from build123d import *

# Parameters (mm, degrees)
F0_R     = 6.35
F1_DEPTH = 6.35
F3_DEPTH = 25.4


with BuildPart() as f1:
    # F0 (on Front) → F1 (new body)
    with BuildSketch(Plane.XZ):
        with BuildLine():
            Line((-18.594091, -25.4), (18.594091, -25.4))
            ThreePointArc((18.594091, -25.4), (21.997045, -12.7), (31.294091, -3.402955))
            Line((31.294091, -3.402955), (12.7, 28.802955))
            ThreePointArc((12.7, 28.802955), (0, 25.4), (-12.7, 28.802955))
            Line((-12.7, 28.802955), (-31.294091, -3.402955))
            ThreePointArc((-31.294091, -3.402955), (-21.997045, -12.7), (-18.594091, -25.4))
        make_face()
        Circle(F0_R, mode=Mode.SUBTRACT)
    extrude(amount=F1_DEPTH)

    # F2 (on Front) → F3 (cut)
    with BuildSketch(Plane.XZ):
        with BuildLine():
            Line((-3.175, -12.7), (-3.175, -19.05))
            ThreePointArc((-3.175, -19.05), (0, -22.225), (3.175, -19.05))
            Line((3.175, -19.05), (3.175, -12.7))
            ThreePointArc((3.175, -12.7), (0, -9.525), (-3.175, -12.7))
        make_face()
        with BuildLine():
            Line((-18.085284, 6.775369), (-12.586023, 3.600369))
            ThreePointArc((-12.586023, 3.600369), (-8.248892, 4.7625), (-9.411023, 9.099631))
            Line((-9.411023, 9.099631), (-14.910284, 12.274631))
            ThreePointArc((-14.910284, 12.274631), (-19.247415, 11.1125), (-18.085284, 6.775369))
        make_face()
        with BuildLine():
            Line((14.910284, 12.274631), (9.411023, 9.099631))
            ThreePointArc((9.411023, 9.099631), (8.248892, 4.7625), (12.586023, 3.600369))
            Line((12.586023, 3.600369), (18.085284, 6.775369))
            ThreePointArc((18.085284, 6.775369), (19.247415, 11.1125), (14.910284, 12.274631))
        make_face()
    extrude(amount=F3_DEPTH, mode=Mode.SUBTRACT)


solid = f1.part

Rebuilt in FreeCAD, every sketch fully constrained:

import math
import FreeCAD as App
import Part
import Sketcher

V = App.Vector
Q = App.Units.Quantity

doc = App.newDocument("Part")
params = doc.addObject("Spreadsheet::Sheet", "Params")
for row, (alias, value) in enumerate([
    ("sketch1_radius", "0.9999998 in"),
    ("sketch1_radius2", "0.9999999 in"),
    ("sketch1_diameter", "0.5 in"),
    ("sketch1_width", "0.4999998 in"),
    ("pad1_length", "0.25 in"),
    ("sketch2_radius", "0.125 in"),
    ("sketch2_height", "0.25 in"),
    ("sketch2_length", "0.25 in"),
    ("pocket1_length", "1 in"),
], start=1):
    params.set(f"A{row}", alias)
    params.set(f"B{row}", "=" + value)
    params.setAlias(f"B{row}", alias)

body = doc.addObject("PartDesign::Body", "Body")

sketch1 = doc.addObject("Sketcher::SketchObject", "Sketch")
body.addObject(sketch1)
sketch1.AttachmentSupport = (doc.XZ_Plane, [""])
sketch1.MapMode = "FlatFace"
sketch1.addGeometry([
    Part.LineSegment(V(-19, -25, 0), V(19, -25, 0)),
    Part.ArcOfCircle(Part.Circle(V(44, -25, 0), V(0, 0, 1), 25), math.radians(120), math.radians(180)),
    Part.LineSegment(V(31, -3, 0), V(13, 29, 0)),
    Part.ArcOfCircle(Part.Circle(V(0, 51, 0), V(0, 0, 1), 25), math.radians(-120), math.radians(-60)),
    Part.LineSegment(V(-13, 29, 0), V(-31, -3, 0)),
    Part.ArcOfCircle(Part.Circle(V(-44, -25, 0), V(0, 0, 1), 25), math.radians(0), math.radians(60)),
    Part.Circle(V(0, 0, 0), V(0, 0, 1), 6),
], False)
sketch1.addConstraint([
    Sketcher.Constraint("Coincident", 0, 2, 1, 2),
    Sketcher.Constraint("Coincident", 1, 1, 2, 1),
    Sketcher.Constraint("Coincident", 2, 2, 3, 2),
    Sketcher.Constraint("Coincident", 3, 1, 4, 1),
    Sketcher.Constraint("Coincident", 4, 2, 5, 2),
    Sketcher.Constraint("Coincident", 5, 1, 0, 1),
    Sketcher.Constraint("Horizontal", 0),
    Sketcher.Constraint("Coincident", 6, 3, -1, 1),
    Sketcher.Constraint("Equal", 1, 5),
    Sketcher.Constraint("Symmetric", 1, 3, 5, 3, -2),
    Sketcher.Constraint("Symmetric", 2, 2, 3, 1, -2),
    Sketcher.Constraint("Horizontal", 1, 1, 4, 2),
    Sketcher.Constraint("Radius", 1, Q("0.9999998 in")),
    Sketcher.Constraint("Radius", 3, Q("0.9999999 in")),
    Sketcher.Constraint("Diameter", 6, Q("0.5 in")),
    Sketcher.Constraint("DistanceY", 1, 3, -1, 1, Q("0.9999999 in")),
    Sketcher.Constraint("DistanceY", -1, 1, 3, 3, Q("1.9999999 in")),
    Sketcher.Constraint("DistanceY", 0, 2, -1, 1, Q("1 in")),
    Sketcher.Constraint("Angle", 2, Q("120 deg")),
    Sketcher.Constraint("DistanceX", 3, 1, 2, 2, Q("1 in")),
    Sketcher.Constraint("DistanceX", 1, 1, 1, 3, Q("0.4999998 in")),
])
sketch1.setExpression("Constraints[12]", "Params.sketch1_radius")
sketch1.setExpression("Constraints[13]", "Params.sketch1_radius2")
sketch1.setExpression("Constraints[14]", "Params.sketch1_diameter")
sketch1.setExpression("Constraints[20]", "Params.sketch1_width")
pad1 = doc.addObject("PartDesign::Pad", "Pad")
body.addObject(pad1)
pad1.Profile = sketch1
pad1.setExpression("Length", "Params.pad1_length")

sketch2 = doc.addObject("Sketcher::SketchObject", "Sketch001")
body.addObject(sketch2)
sketch2.AttachmentSupport = (doc.XZ_Plane, [""])
sketch2.MapMode = "FlatFace"
sketch2.addGeometry([
    Part.LineSegment(V(-3.2, -12.7, 0), V(-3.2, -19.1, 0)),
    Part.ArcOfCircle(Part.Circle(V(0, -19.1, 0), V(0, 0, 1), 3.2), math.radians(180), math.radians(360)),
    Part.LineSegment(V(3.2, -19.1, 0), V(3.2, -12.7, 0)),
    Part.ArcOfCircle(Part.Circle(V(0, -12.7, 0), V(0, 0, 1), 3.2), math.radians(0), math.radians(180)),
    Part.LineSegment(V(-18.1, 6.8, 0), V(-12.6, 3.6, 0)),
    Part.ArcOfCircle(Part.Circle(V(-11, 6.3, 0), V(0, 0, 1), 3.2), math.radians(-120), math.radians(60)),
    Part.LineSegment(V(-9.4, 9.1, 0), V(-14.9, 12.3, 0)),
    Part.ArcOfCircle(Part.Circle(V(-16.5, 9.5, 0), V(0, 0, 1), 3.2), math.radians(60), math.radians(240)),
    Part.LineSegment(V(14.9, 12.3, 0), V(9.4, 9.1, 0)),
    Part.ArcOfCircle(Part.Circle(V(11, 6.3, 0), V(0, 0, 1), 3.2), math.radians(120), math.radians(300)),
    Part.LineSegment(V(12.6, 3.6, 0), V(18.1, 6.8, 0)),
    Part.ArcOfCircle(Part.Circle(V(16.5, 9.5, 0), V(0, 0, 1), 3.2), math.radians(-60), math.radians(120)),
], False)
sketch2.addConstraint([
    Sketcher.Constraint("Tangent", 0, 2, 1, 1),
    Sketcher.Constraint("Tangent", 1, 2, 2, 1),
    Sketcher.Constraint("Tangent", 2, 2, 3, 1),
    Sketcher.Constraint("Tangent", 3, 2, 0, 1),
    Sketcher.Constraint("Tangent", 4, 2, 5, 1),
    Sketcher.Constraint("Tangent", 5, 2, 6, 1),
    Sketcher.Constraint("Tangent", 6, 2, 7, 1),
    Sketcher.Constraint("Tangent", 7, 2, 4, 1),
    Sketcher.Constraint("Tangent", 8, 2, 9, 1),
    Sketcher.Constraint("Tangent", 9, 2, 10, 1),
    Sketcher.Constraint("Tangent", 10, 2, 11, 1),
    Sketcher.Constraint("Tangent", 11, 2, 8, 1),
    Sketcher.Constraint("Vertical", 0),
    Sketcher.Constraint("Vertical", 2),
    Sketcher.Constraint("Equal", 3, 5),
    Sketcher.Constraint("Equal", 5, 7),
    Sketcher.Constraint("Equal", 7, 9),
    Sketcher.Constraint("Equal", 9, 11),
    Sketcher.Constraint("Symmetric", 5, 3, 9, 3, -2),
    Sketcher.Constraint("Symmetric", 7, 3, 11, 3, -2),
    Sketcher.Constraint("PointOnObject", 1, 3, -2),
    Sketcher.Constraint("Angle", 4, Q("-30.000001 deg")),
    Sketcher.Constraint("Radius", 1, Q("0.125 in")),
    Sketcher.Constraint("DistanceY", 1, 3, 5, 3, Q("1 in")),
    Sketcher.Constraint("DistanceY", 0, 2, 0, 1, Q("0.25 in")),
    Sketcher.Constraint("DistanceY", 3, 3, -1, 1, Q("0.5 in")),
    Sketcher.Constraint("Distance", 4, Q("0.25 in")),
    Sketcher.Constraint("DistanceX", 5, 3, -1, 1, Q("10.998523 mm")),
])
sketch2.setExpression("Constraints[22]", "Params.sketch2_radius")
sketch2.setExpression("Constraints[24]", "Params.sketch2_height")
sketch2.setExpression("Constraints[26]", "Params.sketch2_length")
pocket1 = doc.addObject("PartDesign::Pocket", "Pocket")
body.addObject(pocket1)
pocket1.Profile = sketch2
pocket1.setExpression("Length", "Params.pocket1_length")
pocket1.Reversed = True

doc.recompute()
